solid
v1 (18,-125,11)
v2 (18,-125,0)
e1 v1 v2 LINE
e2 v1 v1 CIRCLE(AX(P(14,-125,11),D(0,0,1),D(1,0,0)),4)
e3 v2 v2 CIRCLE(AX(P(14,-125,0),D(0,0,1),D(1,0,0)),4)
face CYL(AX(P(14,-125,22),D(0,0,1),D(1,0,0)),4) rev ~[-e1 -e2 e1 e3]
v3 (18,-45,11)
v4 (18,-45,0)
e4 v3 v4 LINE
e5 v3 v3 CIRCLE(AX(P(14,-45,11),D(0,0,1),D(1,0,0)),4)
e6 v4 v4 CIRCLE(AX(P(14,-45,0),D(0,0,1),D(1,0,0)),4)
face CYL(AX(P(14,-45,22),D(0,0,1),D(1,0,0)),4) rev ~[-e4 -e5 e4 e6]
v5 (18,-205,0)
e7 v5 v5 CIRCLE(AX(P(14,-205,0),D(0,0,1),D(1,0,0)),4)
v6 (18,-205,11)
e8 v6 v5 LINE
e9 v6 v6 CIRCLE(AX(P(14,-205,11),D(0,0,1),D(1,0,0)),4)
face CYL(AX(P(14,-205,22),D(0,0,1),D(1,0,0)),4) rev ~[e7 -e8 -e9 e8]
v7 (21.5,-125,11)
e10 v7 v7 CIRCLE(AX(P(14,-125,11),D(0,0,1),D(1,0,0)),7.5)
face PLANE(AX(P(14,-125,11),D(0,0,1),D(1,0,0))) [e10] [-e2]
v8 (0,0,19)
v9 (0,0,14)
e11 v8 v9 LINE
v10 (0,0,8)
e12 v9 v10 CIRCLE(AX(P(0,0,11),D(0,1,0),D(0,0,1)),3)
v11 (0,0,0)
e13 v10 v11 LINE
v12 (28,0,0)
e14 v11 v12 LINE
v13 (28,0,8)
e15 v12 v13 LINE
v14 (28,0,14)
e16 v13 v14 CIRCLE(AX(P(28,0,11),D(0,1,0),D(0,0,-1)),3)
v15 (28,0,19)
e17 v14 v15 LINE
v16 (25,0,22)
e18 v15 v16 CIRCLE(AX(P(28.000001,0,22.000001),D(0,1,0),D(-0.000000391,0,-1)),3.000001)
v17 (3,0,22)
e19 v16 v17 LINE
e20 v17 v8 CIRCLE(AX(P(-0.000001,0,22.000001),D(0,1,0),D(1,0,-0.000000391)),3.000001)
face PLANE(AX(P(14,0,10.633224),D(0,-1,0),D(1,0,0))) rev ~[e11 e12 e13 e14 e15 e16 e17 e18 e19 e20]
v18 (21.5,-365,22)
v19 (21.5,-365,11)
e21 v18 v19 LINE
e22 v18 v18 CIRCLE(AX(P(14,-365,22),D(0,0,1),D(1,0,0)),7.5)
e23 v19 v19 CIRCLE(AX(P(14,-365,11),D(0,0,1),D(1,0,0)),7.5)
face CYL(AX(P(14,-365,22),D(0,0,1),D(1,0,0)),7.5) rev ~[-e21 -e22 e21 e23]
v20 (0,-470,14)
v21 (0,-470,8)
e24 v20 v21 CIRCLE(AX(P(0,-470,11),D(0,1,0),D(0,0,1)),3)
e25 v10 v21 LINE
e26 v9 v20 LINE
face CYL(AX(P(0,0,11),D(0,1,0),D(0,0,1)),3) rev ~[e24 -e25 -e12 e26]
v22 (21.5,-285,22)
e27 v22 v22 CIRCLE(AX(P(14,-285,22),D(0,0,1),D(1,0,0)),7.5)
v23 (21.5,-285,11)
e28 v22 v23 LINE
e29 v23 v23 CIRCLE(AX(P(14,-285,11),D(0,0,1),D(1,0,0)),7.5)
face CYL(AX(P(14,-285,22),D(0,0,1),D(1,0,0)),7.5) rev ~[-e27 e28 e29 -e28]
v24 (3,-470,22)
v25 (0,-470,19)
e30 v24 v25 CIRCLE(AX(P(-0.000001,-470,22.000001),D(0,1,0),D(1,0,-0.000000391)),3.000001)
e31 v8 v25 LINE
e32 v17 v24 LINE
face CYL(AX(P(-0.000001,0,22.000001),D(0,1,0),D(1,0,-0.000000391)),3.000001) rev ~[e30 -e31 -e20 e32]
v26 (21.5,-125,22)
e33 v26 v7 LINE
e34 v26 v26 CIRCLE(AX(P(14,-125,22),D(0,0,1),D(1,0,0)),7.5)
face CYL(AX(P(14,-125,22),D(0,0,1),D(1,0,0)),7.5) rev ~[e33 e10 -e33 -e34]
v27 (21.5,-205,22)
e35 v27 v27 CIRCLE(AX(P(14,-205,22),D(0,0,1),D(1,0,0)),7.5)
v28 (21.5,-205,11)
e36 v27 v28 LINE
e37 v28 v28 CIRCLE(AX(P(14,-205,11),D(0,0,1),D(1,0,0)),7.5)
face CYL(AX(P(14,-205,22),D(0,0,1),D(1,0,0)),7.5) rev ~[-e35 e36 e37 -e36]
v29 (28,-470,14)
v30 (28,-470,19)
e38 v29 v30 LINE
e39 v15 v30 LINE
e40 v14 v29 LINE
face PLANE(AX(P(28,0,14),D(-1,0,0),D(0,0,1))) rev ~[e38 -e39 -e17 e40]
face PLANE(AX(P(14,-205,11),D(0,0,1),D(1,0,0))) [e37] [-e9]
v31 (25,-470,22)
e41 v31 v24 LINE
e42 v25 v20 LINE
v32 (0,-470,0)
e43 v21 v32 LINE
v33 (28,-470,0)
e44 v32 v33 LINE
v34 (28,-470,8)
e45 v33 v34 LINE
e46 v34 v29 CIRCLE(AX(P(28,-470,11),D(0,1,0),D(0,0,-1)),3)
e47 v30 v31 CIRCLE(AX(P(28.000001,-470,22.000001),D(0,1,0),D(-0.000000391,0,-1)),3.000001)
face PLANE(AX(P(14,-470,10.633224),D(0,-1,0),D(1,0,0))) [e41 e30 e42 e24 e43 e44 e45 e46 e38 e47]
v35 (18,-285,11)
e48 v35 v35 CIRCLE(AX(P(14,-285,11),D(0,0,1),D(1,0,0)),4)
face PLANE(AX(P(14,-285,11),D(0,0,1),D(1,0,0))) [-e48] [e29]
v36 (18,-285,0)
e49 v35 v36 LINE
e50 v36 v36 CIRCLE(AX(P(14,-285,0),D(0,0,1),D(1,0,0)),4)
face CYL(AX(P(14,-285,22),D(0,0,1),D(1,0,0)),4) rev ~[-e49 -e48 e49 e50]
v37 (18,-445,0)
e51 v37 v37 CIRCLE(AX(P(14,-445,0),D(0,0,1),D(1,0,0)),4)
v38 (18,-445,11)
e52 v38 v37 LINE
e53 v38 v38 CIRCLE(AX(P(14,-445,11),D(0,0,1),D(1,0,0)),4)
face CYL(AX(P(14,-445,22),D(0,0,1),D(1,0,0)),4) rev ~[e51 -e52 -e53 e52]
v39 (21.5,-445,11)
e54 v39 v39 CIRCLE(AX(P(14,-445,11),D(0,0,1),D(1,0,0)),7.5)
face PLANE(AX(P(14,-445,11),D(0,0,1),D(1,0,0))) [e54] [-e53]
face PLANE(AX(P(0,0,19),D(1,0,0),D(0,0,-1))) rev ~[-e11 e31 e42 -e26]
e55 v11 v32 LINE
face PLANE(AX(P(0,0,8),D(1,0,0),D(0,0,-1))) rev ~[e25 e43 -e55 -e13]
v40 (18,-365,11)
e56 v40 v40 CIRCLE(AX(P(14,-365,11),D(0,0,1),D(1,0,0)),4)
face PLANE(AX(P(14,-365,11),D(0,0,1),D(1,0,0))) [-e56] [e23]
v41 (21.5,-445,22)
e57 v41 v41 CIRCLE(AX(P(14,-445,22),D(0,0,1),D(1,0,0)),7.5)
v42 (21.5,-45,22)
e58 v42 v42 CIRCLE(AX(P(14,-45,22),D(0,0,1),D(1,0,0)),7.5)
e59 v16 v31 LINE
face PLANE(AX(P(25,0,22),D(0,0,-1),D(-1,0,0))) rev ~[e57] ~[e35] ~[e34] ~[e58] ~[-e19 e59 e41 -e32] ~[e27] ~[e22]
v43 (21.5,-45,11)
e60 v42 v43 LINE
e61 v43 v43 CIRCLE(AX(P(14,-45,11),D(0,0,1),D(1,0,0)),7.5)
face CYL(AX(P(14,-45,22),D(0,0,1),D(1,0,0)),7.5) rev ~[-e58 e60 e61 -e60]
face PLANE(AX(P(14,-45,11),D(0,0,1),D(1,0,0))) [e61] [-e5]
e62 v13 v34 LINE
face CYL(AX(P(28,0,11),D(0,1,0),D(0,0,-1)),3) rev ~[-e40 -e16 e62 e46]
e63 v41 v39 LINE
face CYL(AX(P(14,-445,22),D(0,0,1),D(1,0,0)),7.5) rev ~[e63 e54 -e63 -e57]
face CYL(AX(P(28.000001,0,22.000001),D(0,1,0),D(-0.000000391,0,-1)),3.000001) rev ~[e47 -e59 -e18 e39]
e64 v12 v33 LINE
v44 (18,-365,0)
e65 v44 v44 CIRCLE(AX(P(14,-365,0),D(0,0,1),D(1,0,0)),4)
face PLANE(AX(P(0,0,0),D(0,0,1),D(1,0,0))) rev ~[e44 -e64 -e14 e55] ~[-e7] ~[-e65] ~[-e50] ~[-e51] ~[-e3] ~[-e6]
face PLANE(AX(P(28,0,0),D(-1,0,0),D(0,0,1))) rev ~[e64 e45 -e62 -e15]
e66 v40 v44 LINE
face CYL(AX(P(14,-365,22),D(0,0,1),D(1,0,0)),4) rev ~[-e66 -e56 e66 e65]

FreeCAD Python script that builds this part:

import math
import FreeCAD as App
import Part
import Sketcher
from FreeCAD import Vector

doc = App.newDocument("Part")
body = doc.addObject("PartDesign::Body", "Body")

sketch1 = body.newObject("Sketcher::SketchObject", "Sketch")
sketch1.AttachmentSupport = (doc.getObject("XZ_Plane"), [""])
sketch1.MapMode = "FlatFace"
sketch1.addGeometry([
    Part.LineSegment(Vector(0, 8, 0), Vector(0, 0, 0)),
    Part.LineSegment(Vector(0, 0, 0), Vector(28, 0, 0)),
    Part.LineSegment(Vector(28, 0, 0), Vector(28, 8, 0)),
    Part.ArcOfCircle(Part.Circle(Vector(28, 11, 0), Vector(0, 0, 1), 3), math.radians(90), math.radians(270)),
    Part.LineSegment(Vector(28, 14, 0), Vector(28, 19, 0)),
    Part.ArcOfCircle(Part.Circle(Vector(28, 22, 0), Vector(0, 0, 1), 3), math.radians(-180), math.radians(-90)),
    Part.LineSegment(Vector(25, 22, 0), Vector(3, 22, 0)),
    Part.ArcOfCircle(Part.Circle(Vector(0, 22, 0), Vector(0, 0, 1), 3), math.radians(-90), math.radians(0)),
    Part.LineSegment(Vector(0, 19, 0), Vector(0, 14, 0)),
    Part.ArcOfCircle(Part.Circle(Vector(0, 11, 0), Vector(0, 0, 1), 3), math.radians(-90), math.radians(90)),
], False)
sketch1.addConstraint([
    Sketcher.Constraint("Coincident", 0, 2, 1, 1),
    Sketcher.Constraint("Coincident", 1, 2, 2, 1),
    Sketcher.Constraint("Coincident", 2, 2, 3, 2),
    Sketcher.Constraint("Coincident", 3, 1, 4, 1),
    Sketcher.Constraint("Coincident", 4, 2, 5, 2),
    Sketcher.Constraint("Coincident", 5, 1, 6, 1),
    Sketcher.Constraint("Coincident", 6, 2, 7, 2),
    Sketcher.Constraint("Coincident", 7, 1, 8, 1),
    Sketcher.Constraint("Coincident", 8, 2, 9, 2),
    Sketcher.Constraint("Coincident", 9, 1, 0, 1),
    Sketcher.Constraint("Vertical", 0),
    Sketcher.Constraint("Horizontal", 1),
    Sketcher.Constraint("Vertical", 2),
    Sketcher.Constraint("Vertical", 4),
    Sketcher.Constraint("Horizontal", 6),
    Sketcher.Constraint("Vertical", 8),
    Sketcher.Constraint("Coincident", 0, 2, -1, 1),
    Sketcher.Constraint("Equal", 3, 5),
    Sketcher.Constraint("Equal", 5, 7),
    Sketcher.Constraint("Equal", 7, 9),
    Sketcher.Constraint("PointOnObject", 7, 3, -2),
    Sketcher.Constraint("PointOnObject", 9, 3, -2),
    Sketcher.Constraint("PointOnObject", 7, 1, -2),
    Sketcher.Constraint("Horizontal", 5, 3, 7, 3),
    Sketcher.Constraint("Horizontal", 3, 3, 9, 3),
    Sketcher.Constraint("Horizontal", 7, 3, 5, 1),
    Sketcher.Constraint("Vertical", 3, 3, 5, 3),
    Sketcher.Constraint("Vertical", 5, 3, 1, 2),
    Sketcher.Constraint("Vertical", 2, 2, 3, 1),
    Sketcher.Constraint("Radius", 3, 3.0),
    Sketcher.Constraint("DistanceX", 1, 1, 1, 2, 28.0),
    Sketcher.Constraint("DistanceY", 0, 2, 0, 1, 8.0),
    Sketcher.Constraint("DistanceY", 4, 1, 4, 2, 5.0),
])
pad1 = body.newObject("PartDesign::Pad", "Pad")
pad1.Profile = sketch1
pad1.Length = 470

sketch2 = body.newObject("Sketcher::SketchObject", "Sketch001")
sketch2.AttachmentSupport = (doc.getObject("XY_Plane"), [""])
sketch2.MapMode = "FlatFace"
sketch2.AttachmentOffset = App.Placement(Vector(0, 0, 22), App.Rotation())
sketch2.addGeometry([
    Part.Circle(Vector(14, -45, 0), Vector(0, 0, 1), 4),
    Part.Circle(Vector(14, -125, 0), Vector(0, 0, 1), 4),
    Part.Circle(Vector(14, -205, 0), Vector(0, 0, 1), 4),
    Part.Circle(Vector(14, -285, 0), Vector(0, 0, 1), 4),
    Part.Circle(Vector(14, -365, 0), Vector(0, 0, 1), 4),
    Part.Circle(Vector(14, -445, 0), Vector(0, 0, 1), 4),
], False)
sketch2.addConstraint([
    Sketcher.Constraint("Equal", 0, 1),
    Sketcher.Constraint("Equal", 1, 2),
    Sketcher.Constraint("Equal", 2, 3),
    Sketcher.Constraint("Equal", 3, 4),
    Sketcher.Constraint("Equal", 4, 5),
    Sketcher.Constraint("Vertical", 0, 3, 1, 3),
    Sketcher.Constraint("Vertical", 1, 3, 2, 3),
    Sketcher.Constraint("Vertical", 2, 3, 3, 3),
    Sketcher.Constraint("Vertical", 3, 3, 4, 3),
    Sketcher.Constraint("Vertical", 4, 3, 5, 3),
    Sketcher.Constraint("Diameter", 0, 8.0),
    Sketcher.Constraint("DistanceX", -1, 1, 0, 3, 14.0),
    Sketcher.Constraint("DistanceY", 0, 3, -1, 1, 45.0),
    Sketcher.Constraint("DistanceY", 1, 3, -1, 1, 125.0),
    Sketcher.Constraint("DistanceY", 2, 3, -1, 1, 205.0),
    Sketcher.Constraint("DistanceY", 3, 3, -1, 1, 285.0),
    Sketcher.Constraint("DistanceY", 4, 3, -1, 1, 365.0),
    Sketcher.Constraint("DistanceY", 5, 3, -1, 1, 445.0),
])
pocket1 = body.newObject("PartDesign::Pocket", "Pocket")
pocket1.Profile = sketch2
pocket1.Length = 25

sketch3 = body.newObject("Sketcher::SketchObject", "Sketch002")
sketch3.AttachmentSupport = (doc.getObject("XY_Plane"), [""])
sketch3.MapMode = "FlatFace"
sketch3.AttachmentOffset = App.Placement(Vector(0, 0, 22), App.Rotation())
sketch3.addGeometry([
    Part.Circle(Vector(14, -205, 0), Vector(0, 0, 1), 8),
    Part.Circle(Vector(14, -125, 0), Vector(0, 0, 1), 8),
    Part.Circle(Vector(14, -45, 0), Vector(0, 0, 1), 8),
    Part.Circle(Vector(14, -285, 0), Vector(0, 0, 1), 8),
    Part.Circle(Vector(14, -365, 0), Vector(0, 0, 1), 8),
    Part.Circle(Vector(14, -445, 0), Vector(0, 0, 1), 8),
], False)
sketch3.addConstraint([
    Sketcher.Constraint("Equal", 0, 1),
    Sketcher.Constraint("Equal", 1, 2),
    Sketcher.Constraint("Equal", 2, 3),
    Sketcher.Constraint("Equal", 3, 4),
    Sketcher.Constraint("Equal", 4, 5),
    Sketcher.Constraint("Vertical", 0, 3, 1, 3),
    Sketcher.Constraint("Vertical", 1, 3, 2, 3),
    Sketcher.Constraint("Vertical", 2, 3, 3, 3),
    Sketcher.Constraint("Vertical", 3, 3, 4, 3),
    Sketcher.Constraint("Vertical", 4, 3, 5, 3),
    Sketcher.Constraint("Diameter", 0, 15.0),
    Sketcher.Constraint("DistanceX", -1, 1, 0, 3, 14.0),
    Sketcher.Constraint("DistanceY", 0, 3, -1, 1, 205.0),
    Sketcher.Constraint("DistanceY", 1, 3, -1, 1, 125.0),
    Sketcher.Constraint("DistanceY", 2, 3, -1, 1, 45.0),
    Sketcher.Constraint("DistanceY", 3, 3, -1, 1, 285.0),
    Sketcher.Constraint("DistanceY", 4, 3, -1, 1, 365.0),
    Sketcher.Constraint("DistanceY", 5, 3, -1, 1, 445.0),
])
pocket2 = body.newObject("PartDesign::Pocket", "Pocket001")
pocket2.Profile = sketch3
pocket2.Length = 11

doc.recompute()
